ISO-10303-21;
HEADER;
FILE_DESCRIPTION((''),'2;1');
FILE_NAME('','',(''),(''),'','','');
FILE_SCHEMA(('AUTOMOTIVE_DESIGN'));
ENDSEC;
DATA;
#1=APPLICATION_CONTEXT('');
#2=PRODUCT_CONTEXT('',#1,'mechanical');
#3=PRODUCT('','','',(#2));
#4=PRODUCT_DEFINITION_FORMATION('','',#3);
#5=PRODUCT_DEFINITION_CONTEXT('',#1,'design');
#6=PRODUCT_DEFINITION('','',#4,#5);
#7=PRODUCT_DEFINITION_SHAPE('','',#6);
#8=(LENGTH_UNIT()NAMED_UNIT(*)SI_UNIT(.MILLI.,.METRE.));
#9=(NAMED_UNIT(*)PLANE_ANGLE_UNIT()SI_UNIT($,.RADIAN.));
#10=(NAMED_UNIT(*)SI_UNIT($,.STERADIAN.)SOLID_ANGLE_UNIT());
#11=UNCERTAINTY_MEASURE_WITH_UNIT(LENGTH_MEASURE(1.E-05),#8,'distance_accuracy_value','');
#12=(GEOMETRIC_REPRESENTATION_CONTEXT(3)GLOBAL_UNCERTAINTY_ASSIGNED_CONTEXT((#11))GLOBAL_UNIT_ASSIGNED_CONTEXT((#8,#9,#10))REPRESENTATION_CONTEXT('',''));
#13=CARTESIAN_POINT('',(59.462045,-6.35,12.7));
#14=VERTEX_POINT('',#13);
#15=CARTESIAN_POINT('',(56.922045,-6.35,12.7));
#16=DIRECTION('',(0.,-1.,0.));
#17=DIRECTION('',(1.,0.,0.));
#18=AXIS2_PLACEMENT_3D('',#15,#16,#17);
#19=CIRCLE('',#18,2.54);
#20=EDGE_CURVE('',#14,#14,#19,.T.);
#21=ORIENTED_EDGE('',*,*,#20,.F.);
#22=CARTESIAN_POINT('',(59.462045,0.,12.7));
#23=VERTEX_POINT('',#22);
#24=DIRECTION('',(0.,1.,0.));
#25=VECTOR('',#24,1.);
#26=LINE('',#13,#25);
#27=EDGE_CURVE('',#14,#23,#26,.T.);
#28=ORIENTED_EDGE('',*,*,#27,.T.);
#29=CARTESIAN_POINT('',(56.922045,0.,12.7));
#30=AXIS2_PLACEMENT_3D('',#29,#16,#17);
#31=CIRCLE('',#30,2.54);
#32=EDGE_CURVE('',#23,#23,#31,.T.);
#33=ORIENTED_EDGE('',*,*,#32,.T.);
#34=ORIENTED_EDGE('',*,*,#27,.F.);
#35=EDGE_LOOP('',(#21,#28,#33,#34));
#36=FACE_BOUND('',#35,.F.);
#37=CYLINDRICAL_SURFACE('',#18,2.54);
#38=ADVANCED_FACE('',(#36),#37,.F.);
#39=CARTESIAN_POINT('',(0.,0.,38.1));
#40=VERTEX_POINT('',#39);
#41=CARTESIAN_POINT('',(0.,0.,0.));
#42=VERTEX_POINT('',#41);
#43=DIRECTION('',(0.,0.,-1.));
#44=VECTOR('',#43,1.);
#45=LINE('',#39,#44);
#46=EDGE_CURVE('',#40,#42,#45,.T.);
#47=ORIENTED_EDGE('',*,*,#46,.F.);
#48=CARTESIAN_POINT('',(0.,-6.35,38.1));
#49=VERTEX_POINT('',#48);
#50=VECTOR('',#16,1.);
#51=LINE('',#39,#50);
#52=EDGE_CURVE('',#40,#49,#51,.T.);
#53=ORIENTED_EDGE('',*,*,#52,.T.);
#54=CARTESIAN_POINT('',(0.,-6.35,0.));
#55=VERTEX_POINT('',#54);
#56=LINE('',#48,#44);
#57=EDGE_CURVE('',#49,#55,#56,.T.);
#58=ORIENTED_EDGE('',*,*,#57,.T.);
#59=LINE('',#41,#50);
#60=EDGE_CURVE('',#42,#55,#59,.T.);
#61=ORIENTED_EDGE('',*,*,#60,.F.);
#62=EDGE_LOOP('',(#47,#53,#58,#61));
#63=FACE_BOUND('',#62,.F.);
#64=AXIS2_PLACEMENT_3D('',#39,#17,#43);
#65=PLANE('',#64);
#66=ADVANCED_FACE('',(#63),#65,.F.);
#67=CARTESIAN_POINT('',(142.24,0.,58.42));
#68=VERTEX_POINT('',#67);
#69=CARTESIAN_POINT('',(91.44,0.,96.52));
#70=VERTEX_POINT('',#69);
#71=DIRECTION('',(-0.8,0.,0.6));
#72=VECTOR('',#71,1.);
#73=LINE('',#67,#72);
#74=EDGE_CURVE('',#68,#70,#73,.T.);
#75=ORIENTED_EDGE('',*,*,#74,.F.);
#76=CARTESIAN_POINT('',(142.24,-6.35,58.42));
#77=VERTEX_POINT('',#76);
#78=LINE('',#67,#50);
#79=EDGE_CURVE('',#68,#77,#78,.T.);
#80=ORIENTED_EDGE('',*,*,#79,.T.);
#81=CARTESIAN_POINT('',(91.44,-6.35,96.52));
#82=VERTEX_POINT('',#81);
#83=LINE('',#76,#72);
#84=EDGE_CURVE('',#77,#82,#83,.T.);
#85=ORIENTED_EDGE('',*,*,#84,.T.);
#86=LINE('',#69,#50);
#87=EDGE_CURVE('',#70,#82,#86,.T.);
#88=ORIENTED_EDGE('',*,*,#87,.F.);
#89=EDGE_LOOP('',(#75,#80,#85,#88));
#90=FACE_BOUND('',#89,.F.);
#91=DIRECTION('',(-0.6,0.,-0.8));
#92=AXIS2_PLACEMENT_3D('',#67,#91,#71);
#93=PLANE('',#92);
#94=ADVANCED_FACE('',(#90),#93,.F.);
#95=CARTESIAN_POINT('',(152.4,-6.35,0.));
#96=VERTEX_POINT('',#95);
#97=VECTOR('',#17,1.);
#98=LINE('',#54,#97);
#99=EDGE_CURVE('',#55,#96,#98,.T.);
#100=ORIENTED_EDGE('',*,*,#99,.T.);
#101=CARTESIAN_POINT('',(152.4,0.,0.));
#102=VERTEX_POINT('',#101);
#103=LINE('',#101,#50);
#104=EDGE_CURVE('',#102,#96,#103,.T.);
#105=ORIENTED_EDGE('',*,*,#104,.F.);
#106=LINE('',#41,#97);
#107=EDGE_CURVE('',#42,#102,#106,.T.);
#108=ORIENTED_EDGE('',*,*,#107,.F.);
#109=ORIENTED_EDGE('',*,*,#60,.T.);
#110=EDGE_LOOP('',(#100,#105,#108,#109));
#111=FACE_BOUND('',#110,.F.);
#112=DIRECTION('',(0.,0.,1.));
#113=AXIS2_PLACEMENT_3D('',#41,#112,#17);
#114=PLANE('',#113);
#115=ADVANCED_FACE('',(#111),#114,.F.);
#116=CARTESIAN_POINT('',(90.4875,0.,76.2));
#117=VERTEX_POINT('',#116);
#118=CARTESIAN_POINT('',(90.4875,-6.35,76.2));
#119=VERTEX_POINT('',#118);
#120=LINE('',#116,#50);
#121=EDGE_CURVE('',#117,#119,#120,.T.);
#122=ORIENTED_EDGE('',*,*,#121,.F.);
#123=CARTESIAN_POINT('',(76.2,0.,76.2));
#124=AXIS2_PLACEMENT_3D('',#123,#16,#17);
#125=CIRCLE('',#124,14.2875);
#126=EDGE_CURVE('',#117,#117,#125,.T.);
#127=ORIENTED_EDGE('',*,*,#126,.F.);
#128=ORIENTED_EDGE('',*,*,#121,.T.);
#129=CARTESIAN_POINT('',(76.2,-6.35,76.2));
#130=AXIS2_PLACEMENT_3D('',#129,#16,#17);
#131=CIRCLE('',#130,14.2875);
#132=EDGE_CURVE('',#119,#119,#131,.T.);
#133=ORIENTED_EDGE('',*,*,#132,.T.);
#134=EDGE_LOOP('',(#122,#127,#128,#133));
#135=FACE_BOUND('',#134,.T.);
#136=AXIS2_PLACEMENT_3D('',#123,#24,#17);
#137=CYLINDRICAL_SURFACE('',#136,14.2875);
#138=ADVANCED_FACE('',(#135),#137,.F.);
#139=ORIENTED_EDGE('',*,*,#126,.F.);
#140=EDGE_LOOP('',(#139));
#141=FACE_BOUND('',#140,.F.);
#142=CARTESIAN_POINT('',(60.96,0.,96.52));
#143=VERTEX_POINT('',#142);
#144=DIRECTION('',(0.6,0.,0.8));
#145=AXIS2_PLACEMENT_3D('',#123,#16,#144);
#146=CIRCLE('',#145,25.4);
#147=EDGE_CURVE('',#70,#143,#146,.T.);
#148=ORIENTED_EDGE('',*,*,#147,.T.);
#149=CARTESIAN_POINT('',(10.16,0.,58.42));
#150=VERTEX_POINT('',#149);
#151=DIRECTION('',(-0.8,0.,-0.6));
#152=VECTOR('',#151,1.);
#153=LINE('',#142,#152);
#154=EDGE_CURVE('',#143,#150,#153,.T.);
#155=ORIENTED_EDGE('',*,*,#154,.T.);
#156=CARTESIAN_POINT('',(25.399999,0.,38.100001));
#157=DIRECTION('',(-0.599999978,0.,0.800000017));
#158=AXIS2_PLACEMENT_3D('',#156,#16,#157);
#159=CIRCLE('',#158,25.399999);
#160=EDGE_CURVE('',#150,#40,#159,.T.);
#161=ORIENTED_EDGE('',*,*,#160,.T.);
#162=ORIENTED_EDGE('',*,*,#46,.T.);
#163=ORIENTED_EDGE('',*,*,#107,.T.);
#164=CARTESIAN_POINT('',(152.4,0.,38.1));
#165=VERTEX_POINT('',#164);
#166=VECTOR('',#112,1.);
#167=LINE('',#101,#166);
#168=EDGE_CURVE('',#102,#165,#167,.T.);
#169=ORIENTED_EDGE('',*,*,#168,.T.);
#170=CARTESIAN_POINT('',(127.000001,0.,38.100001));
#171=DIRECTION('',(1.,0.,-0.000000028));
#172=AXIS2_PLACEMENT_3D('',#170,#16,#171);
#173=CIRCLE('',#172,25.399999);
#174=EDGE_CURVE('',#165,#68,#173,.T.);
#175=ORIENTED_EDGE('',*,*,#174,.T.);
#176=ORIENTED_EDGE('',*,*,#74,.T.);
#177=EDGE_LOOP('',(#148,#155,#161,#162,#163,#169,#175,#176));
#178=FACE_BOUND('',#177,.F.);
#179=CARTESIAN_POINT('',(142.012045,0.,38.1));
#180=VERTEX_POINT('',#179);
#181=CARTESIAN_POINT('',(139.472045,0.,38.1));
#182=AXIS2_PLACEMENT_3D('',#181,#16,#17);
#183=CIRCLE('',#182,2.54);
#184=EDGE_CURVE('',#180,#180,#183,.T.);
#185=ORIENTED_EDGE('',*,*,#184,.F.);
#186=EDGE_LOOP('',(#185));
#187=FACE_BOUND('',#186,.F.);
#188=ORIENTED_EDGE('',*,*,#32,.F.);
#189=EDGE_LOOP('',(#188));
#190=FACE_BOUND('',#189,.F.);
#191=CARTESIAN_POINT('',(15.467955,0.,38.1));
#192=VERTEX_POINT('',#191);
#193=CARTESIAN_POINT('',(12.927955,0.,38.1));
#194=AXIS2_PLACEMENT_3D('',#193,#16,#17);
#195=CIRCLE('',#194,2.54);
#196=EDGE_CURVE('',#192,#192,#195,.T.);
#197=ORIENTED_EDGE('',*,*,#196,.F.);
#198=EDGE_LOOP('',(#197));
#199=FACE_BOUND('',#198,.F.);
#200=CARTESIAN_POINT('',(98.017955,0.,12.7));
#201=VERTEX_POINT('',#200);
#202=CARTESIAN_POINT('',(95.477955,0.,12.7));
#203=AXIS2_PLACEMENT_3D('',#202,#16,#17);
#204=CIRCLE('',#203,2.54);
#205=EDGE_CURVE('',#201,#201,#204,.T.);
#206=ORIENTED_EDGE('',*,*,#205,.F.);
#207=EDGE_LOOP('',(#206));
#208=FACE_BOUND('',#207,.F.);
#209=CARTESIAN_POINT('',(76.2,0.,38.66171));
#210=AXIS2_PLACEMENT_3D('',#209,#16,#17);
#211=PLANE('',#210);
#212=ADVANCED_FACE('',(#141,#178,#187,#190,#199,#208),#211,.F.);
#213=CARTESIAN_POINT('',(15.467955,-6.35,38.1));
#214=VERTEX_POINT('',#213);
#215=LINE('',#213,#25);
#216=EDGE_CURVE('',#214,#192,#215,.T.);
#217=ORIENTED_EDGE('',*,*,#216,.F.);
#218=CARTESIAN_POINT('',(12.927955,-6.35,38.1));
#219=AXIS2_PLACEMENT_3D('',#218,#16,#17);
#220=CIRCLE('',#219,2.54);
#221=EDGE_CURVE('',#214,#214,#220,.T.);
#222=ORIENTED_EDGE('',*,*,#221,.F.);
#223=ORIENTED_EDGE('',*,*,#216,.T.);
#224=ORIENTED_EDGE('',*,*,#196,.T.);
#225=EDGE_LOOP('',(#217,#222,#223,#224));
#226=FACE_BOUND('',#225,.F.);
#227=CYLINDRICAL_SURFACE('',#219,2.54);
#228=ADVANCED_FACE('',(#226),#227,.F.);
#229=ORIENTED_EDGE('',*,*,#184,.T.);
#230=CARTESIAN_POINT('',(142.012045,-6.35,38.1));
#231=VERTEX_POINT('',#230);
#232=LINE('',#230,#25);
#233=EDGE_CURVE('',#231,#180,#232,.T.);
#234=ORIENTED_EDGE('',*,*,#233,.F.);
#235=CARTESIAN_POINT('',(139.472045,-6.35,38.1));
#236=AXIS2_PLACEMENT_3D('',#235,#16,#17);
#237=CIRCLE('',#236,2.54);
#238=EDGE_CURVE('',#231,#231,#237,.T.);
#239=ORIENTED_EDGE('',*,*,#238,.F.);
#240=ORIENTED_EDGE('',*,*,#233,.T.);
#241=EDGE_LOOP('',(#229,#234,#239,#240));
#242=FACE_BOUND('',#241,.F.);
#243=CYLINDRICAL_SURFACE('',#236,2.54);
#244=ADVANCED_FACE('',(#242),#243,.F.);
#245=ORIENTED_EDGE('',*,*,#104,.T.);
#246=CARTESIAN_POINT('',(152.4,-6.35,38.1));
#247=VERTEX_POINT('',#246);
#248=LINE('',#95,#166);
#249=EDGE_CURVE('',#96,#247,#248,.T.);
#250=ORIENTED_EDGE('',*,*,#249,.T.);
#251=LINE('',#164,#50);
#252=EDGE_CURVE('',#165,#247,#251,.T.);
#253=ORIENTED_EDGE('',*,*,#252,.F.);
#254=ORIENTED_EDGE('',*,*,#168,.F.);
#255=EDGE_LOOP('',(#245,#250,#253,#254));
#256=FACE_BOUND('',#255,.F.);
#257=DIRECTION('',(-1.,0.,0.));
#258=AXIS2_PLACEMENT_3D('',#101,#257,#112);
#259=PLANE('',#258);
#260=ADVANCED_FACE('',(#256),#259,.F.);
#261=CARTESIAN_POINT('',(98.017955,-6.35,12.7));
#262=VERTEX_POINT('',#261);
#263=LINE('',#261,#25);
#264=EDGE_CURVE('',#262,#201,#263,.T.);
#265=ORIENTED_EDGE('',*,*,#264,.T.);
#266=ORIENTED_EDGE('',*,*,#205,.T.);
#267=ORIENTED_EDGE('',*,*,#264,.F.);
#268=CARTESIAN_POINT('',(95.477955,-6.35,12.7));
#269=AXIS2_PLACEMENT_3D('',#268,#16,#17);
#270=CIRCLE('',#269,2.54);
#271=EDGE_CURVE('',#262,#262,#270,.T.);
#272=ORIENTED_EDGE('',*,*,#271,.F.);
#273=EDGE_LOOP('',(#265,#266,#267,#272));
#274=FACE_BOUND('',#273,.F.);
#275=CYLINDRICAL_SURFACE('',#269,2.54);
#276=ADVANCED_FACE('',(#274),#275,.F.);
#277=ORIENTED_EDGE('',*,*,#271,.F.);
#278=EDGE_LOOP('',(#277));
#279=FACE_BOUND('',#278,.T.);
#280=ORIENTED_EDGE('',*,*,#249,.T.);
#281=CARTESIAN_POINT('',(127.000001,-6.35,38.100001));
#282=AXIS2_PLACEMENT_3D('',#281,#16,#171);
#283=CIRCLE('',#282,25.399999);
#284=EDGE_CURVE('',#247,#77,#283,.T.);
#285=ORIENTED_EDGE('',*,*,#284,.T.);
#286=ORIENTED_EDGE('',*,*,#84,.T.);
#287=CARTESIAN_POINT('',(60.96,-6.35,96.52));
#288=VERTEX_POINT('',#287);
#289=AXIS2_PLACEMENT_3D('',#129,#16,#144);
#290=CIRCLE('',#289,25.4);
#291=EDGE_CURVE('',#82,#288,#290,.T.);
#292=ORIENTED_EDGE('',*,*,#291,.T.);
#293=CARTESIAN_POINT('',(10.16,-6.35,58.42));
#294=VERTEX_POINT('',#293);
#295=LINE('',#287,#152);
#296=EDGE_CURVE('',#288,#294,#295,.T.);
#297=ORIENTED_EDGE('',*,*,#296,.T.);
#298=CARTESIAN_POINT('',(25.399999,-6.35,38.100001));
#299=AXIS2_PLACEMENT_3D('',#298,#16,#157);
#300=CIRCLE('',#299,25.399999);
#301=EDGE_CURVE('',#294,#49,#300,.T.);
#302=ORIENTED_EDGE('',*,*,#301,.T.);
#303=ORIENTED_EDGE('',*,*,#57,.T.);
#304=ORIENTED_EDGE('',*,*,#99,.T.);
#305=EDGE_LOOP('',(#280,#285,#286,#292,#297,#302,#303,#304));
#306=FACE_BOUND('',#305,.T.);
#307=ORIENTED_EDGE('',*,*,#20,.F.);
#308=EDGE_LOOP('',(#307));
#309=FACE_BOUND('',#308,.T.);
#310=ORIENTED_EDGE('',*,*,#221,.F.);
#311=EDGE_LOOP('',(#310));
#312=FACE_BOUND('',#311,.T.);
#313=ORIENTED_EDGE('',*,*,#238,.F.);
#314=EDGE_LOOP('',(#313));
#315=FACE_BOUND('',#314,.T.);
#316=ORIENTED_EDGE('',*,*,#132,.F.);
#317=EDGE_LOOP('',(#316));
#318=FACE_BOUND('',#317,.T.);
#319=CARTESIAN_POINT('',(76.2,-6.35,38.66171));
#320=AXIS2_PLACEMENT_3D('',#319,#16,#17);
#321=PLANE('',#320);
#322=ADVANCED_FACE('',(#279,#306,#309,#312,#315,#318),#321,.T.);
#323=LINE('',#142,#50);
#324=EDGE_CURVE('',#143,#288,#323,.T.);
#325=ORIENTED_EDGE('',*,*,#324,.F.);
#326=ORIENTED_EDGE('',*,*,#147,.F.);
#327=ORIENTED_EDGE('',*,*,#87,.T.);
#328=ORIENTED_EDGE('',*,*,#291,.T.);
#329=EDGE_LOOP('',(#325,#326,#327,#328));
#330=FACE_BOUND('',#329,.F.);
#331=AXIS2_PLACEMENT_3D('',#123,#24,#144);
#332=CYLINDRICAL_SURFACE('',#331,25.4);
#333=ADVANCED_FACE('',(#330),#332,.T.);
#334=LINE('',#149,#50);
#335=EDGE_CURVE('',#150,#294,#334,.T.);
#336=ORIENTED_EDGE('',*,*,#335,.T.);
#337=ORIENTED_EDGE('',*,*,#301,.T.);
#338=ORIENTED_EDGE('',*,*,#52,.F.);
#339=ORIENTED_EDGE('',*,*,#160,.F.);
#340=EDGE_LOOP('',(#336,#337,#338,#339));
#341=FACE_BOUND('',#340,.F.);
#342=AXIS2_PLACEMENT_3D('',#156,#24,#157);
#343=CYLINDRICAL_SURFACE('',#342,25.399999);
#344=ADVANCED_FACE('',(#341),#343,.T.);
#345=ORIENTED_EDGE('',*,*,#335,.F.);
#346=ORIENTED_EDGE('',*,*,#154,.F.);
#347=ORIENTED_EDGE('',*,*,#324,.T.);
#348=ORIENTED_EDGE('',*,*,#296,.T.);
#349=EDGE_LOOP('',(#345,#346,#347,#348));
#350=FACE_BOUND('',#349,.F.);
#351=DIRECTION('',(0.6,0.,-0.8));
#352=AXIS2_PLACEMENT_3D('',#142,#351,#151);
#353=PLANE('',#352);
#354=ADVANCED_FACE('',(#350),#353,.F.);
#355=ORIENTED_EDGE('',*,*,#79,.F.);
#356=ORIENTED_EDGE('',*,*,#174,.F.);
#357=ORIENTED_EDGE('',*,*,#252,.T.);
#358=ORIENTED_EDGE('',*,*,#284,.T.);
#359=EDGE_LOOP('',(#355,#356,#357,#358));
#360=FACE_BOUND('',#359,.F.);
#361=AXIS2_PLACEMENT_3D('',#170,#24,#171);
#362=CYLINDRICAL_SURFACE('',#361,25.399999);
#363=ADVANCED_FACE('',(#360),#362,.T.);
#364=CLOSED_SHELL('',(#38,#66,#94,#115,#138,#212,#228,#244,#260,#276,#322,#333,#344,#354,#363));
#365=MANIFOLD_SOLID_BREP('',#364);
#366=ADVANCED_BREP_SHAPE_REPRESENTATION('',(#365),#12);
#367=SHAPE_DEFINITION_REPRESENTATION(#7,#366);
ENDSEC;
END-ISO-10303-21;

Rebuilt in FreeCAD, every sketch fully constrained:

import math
import FreeCAD as App
import Part
import Sketcher
from FreeCAD import Vector
Q = App.Units.Quantity

doc = App.newDocument("Part")
body = doc.addObject("PartDesign::Body", "Body")

# Sketch on XZ plane
sketch1 = body.newObject("Sketcher::SketchObject", "Sketch")
sketch1.AttachmentSupport = (doc.getObject("XZ_Plane"), [""])
sketch1.MapMode = "FlatFace"
sketch1.addGeometry([
    Part.LineSegment(Vector(0, 38, 0), Vector(0, 0, 0)),  # 0
    Part.LineSegment(Vector(0, 0, 0), Vector(152, 0, 0)),  # 1
    Part.LineSegment(Vector(152, 0, 0), Vector(152, 38, 0)),  # 2
    Part.ArcOfCircle(Part.Circle(Vector(127, 38, 0), Vector(0, 0, 1), 25), math.radians(0), math.radians(53)),  # 3
    Part.LineSegment(Vector(142, 58, 0), Vector(91, 97, 0)),  # 4
    Part.ArcOfCircle(Part.Circle(Vector(76, 76, 0), Vector(0, 0, 1), 25), math.radians(53), math.radians(127)),  # 5
    Part.LineSegment(Vector(61, 97, 0), Vector(10, 58, 0)),  # 6
    Part.ArcOfCircle(Part.Circle(Vector(25, 38, 0), Vector(0, 0, 1), 25), math.radians(127), math.radians(180)),  # 7
    Part.Circle(Vector(76, 76, 0), Vector(0, 0, 1), 14),  # 8
], False)
sketch1.addConstraint([
    Sketcher.Constraint("Coincident", 0, 2, 1, 1),
    Sketcher.Constraint("Coincident", 1, 2, 2, 1),
    Sketcher.Constraint("Tangent", 2, 2, 3, 1),
    Sketcher.Constraint("Tangent", 3, 2, 4, 1),
    Sketcher.Constraint("Tangent", 4, 2, 5, 1),
    Sketcher.Constraint("Tangent", 5, 2, 6, 1),
    Sketcher.Constraint("Tangent", 6, 2, 7, 1),
    Sketcher.Constraint("Tangent", 7, 2, 0, 1),
    Sketcher.Constraint("Vertical", 0),
    Sketcher.Constraint("Horizontal", 1),
    Sketcher.Constraint("Vertical", 2),
    Sketcher.Constraint("Coincident", 0, 2, -1, 1),
    Sketcher.Constraint("Coincident", 8, 3, 5, 3),
    Sketcher.Constraint("Equal", 3, 5),
    Sketcher.Constraint("Equal", 5, 7),
    Sketcher.Constraint("Horizontal", 3, 3, 7, 3),
    Sketcher.Constraint("Horizontal", 4, 2, 5, 2),
    Sketcher.Constraint("Radius", 3, Q("0.9999999 in")),
    Sketcher.Constraint("DistanceX", 1, 1, 1, 2, Q("6 in")),
    Sketcher.Constraint("Diameter", 8, Q("1.125 in")),
    Sketcher.Constraint("DistanceY", 0, 2, 0, 1, Q("1.5 in")),
    Sketcher.Constraint("DistanceY", -1, 1, 5, 3, Q("3 in")),
])
pad1 = body.newObject("PartDesign::Pad", "Pad")
pad1.Profile = sketch1
pad1.Length = Q("0.25 in")

# Sketch on XZ plane
sketch2 = body.newObject("Sketcher::SketchObject", "Sketch001")
sketch2.AttachmentSupport = (doc.getObject("XZ_Plane"), [""])
sketch2.MapMode = "FlatFace"
sketch2.AttachmentOffset = App.Placement(Vector(0, 0, 0.25 * 25.4), App.Rotation())
sketch2.addGeometry([
    Part.Circle(Vector(12.9, 38.1, 0), Vector(0, 0, 1), 2.5),
    Part.Circle(Vector(56.9, 12.7, 0), Vector(0, 0, 1), 2.5),
    Part.Circle(Vector(95.5, 12.7, 0), Vector(0, 0, 1), 2.5),
    Part.Circle(Vector(139.5, 38.1, 0), Vector(0, 0, 1), 2.5),
], False)
sketch2.addConstraint([
    Sketcher.Constraint("Equal", 0, 1),
    Sketcher.Constraint("Equal", 1, 2),
    Sketcher.Constraint("Equal", 2, 3),
    Sketcher.Constraint("Horizontal", 1, 3, 2, 3),
    Sketcher.Constraint("Horizontal", 0, 3, 3, 3),
    Sketcher.Constraint("Diameter", 0, Q("0.2 in")),
    Sketcher.Constraint("DistanceY", 1, 3, 0, 3, Q("1 in")),
    Sketcher.Constraint("DistanceY", -1, 1, 0, 3, Q("1.5 in")),
    Sketcher.Constraint("DistanceX", 0, 3, 2, 3, Q("3.25 in")),
    Sketcher.Constraint("DistanceX", 1, 3, 3, 3, Q("3.25 in")),
    Sketcher.Constraint("DistanceX", 0, 3, 1, 3, Q("43.99409 mm")),
    Sketcher.Constraint("DistanceX", -1, 1, 0, 3, Q("12.927955 mm")),
])
pocket1 = body.newObject("PartDesign::Pocket", "Pocket")
pocket1.Profile = sketch2
pocket1.Type = "ThroughAll"

doc.recompute()
